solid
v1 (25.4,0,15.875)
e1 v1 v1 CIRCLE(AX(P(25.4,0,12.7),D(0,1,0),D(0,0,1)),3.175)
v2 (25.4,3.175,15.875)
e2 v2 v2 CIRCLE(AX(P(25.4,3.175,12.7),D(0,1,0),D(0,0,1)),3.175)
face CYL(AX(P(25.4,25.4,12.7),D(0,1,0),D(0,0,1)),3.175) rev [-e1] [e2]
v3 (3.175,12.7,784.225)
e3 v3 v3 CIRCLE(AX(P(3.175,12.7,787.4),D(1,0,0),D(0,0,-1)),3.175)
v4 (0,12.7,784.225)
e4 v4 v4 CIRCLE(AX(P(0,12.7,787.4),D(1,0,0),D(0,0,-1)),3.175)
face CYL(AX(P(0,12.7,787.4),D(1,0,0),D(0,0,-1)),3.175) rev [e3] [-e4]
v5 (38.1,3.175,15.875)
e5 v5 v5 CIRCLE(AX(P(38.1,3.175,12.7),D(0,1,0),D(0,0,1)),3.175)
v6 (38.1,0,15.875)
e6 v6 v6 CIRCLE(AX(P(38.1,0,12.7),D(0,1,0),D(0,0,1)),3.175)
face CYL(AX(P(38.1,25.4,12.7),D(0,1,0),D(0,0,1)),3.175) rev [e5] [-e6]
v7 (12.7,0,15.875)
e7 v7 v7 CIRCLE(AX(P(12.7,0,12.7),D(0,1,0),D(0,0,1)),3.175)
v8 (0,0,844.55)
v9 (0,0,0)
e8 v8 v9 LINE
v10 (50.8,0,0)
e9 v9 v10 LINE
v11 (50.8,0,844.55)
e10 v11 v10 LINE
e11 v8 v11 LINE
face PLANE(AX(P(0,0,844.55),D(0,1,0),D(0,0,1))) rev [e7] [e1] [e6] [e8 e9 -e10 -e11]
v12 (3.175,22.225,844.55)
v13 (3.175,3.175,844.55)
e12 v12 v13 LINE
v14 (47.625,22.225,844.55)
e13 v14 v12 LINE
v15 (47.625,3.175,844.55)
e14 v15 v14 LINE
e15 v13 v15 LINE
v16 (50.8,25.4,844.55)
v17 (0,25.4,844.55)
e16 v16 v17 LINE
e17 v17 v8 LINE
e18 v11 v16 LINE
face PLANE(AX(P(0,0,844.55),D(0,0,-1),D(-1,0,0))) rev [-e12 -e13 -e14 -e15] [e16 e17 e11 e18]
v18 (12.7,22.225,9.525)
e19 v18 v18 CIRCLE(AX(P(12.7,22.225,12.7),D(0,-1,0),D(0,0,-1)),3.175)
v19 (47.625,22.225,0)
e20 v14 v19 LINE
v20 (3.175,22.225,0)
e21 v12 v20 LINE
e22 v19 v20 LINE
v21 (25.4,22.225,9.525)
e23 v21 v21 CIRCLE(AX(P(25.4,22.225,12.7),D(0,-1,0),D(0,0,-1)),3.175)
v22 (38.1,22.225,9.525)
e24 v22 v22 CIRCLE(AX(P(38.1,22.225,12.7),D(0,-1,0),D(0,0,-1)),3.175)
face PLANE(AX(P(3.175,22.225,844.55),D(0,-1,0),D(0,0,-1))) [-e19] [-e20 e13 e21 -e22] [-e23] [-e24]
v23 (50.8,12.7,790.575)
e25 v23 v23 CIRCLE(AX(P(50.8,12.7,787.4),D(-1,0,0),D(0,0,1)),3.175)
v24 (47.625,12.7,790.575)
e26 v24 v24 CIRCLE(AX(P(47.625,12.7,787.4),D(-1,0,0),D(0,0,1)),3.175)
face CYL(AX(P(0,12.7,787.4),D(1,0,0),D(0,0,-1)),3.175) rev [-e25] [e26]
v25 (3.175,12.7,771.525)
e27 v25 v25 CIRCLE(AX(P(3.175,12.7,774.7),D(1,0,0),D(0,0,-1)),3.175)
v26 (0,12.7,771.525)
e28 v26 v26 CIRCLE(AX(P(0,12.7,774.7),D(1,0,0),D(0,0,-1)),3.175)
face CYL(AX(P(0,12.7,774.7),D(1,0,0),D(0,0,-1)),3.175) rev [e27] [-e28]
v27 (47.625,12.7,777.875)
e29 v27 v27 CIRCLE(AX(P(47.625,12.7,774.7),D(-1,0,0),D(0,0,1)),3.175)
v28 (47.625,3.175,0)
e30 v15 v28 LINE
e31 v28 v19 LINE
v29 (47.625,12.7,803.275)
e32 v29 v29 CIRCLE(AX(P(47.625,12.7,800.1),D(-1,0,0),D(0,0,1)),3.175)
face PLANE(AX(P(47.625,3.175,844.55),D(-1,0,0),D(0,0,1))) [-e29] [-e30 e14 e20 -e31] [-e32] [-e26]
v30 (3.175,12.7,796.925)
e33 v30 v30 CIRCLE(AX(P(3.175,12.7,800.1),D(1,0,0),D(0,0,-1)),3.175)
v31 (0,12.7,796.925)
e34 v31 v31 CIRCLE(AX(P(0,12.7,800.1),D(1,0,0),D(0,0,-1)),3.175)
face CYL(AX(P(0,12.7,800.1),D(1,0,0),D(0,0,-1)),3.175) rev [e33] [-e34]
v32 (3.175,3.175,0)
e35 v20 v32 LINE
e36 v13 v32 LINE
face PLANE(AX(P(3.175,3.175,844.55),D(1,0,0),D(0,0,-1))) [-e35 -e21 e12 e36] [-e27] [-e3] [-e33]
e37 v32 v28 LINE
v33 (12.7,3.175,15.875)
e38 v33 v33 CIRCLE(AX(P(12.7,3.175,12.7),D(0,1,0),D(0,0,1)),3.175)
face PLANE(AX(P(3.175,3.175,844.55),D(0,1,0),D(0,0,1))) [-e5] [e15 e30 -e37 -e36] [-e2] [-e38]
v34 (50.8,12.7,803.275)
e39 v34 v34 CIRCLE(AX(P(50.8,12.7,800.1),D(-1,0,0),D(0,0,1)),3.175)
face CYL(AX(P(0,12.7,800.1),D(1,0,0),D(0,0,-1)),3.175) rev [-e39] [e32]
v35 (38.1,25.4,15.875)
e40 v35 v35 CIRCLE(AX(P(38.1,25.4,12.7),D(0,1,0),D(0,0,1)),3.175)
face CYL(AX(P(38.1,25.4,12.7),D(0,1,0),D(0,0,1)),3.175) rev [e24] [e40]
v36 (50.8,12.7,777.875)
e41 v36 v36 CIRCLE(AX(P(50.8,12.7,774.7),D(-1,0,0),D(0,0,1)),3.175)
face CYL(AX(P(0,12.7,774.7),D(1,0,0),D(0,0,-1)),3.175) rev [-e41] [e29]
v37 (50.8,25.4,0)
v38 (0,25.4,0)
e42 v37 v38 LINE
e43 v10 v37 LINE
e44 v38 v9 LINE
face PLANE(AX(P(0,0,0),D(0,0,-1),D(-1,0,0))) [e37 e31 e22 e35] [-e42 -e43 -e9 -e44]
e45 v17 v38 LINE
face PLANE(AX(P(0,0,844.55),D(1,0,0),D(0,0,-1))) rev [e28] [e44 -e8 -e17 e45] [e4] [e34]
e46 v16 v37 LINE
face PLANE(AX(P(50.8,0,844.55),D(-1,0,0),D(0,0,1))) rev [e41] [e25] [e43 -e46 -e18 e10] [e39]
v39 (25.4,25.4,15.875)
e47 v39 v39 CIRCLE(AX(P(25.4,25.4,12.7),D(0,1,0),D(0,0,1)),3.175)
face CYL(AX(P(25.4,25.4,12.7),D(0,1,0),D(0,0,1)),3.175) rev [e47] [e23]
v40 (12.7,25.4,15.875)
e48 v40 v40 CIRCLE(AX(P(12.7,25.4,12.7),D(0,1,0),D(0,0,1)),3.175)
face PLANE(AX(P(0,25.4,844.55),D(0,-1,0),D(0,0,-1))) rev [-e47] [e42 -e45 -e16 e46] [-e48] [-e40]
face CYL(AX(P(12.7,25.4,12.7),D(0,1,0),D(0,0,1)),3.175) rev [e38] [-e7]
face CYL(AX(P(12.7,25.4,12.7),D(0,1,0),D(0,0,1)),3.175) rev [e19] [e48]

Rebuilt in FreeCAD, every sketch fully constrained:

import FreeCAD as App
import Part
import Sketcher
Q = App.Units.Quantity

doc = App.newDocument("Part")
body = doc.addObject("PartDesign::Body", "Body")

# Sketch on XY plane
sketch1 = doc.addObject("Sketcher::SketchObject", "Sketch")
body.addObject(sketch1)
sketch1.AttachmentSupport = (doc.XY_Plane, [""])
sketch1.MapMode = "FlatFace"
sketch1.addGeometry([
    Part.LineSegment(App.Vector(0, 25, 0), App.Vector(0, 0, 0)),  # 0
    Part.LineSegment(App.Vector(0, 0, 0), App.Vector(51, 0, 0)),  # 1
    Part.LineSegment(App.Vector(51, 0, 0), App.Vector(51, 25, 0)),  # 2
    Part.LineSegment(App.Vector(51, 25, 0), App.Vector(0, 25, 0)),  # 3
    Part.LineSegment(App.Vector(48, 3, 0), App.Vector(3, 3, 0)),  # 4
    Part.LineSegment(App.Vector(3, 3, 0), App.Vector(3, 22, 0)),  # 5
    Part.LineSegment(App.Vector(3, 22, 0), App.Vector(48, 22, 0)),  # 6
    Part.LineSegment(App.Vector(48, 22, 0), App.Vector(48, 3, 0)),  # 7
], False)
sketch1.addConstraint([
    Sketcher.Constraint("Coincident", 0, 2, 1, 1),
    Sketcher.Constraint("Coincident", 1, 2, 2, 1),
    Sketcher.Constraint("Coincident", 2, 2, 3, 1),
    Sketcher.Constraint("Coincident", 3, 2, 0, 1),
    Sketcher.Constraint("Coincident", 4, 2, 5, 1),
    Sketcher.Constraint("Coincident", 5, 2, 6, 1),
    Sketcher.Constraint("Coincident", 6, 2, 7, 1),
    Sketcher.Constraint("Coincident", 7, 2, 4, 1),
    Sketcher.Constraint("Vertical", 0),
    Sketcher.Constraint("Horizontal", 1),
    Sketcher.Constraint("Vertical", 2),
    Sketcher.Constraint("Horizontal", 3),
    Sketcher.Constraint("Horizontal", 4),
    Sketcher.Constraint("Vertical", 5),
    Sketcher.Constraint("Horizontal", 6),
    Sketcher.Constraint("Vertical", 7),
    Sketcher.Constraint("Coincident", 0, 2, -1, 1),
    Sketcher.Constraint("DistanceX", 1, 1, 1, 2, Q("2 in")),
    Sketcher.Constraint("DistanceY", 0, 2, 0, 1, Q("1 in")),
    Sketcher.Constraint("DistanceX", 4, 2, 4, 1, Q("1.75 in")),
    Sketcher.Constraint("DistanceY", 5, 1, 5, 2, Q("0.75 in")),
    Sketcher.Constraint("DistanceX", -1, 1, 4, 2, Q("0.125 in")),
    Sketcher.Constraint("DistanceY", -1, 1, 4, 2, Q("0.125 in")),
])
pad1 = doc.addObject("PartDesign::Pad", "Pad")
body.addObject(pad1)
pad1.Profile = sketch1
pad1.Length = Q("33.25 in")

# Sketch on YZ plane
sketch2 = doc.addObject("Sketcher::SketchObject", "Sketch001")
body.addObject(sketch2)
sketch2.AttachmentSupport = (doc.YZ_Plane, [""])
sketch2.MapMode = "FlatFace"
sketch2.AttachmentOffset = App.Placement(App.Vector(0, 0, 2 * 25.4), App.Rotation())
sketch2.addGeometry([
    Part.Circle(App.Vector(12.7, 800.1, 0), App.Vector(0, 0, 1), 3.2),
    Part.Circle(App.Vector(12.7, 787.4, 0), App.Vector(0, 0, 1), 3.2),
    Part.Circle(App.Vector(12.7, 774.7, 0), App.Vector(0, 0, 1), 3.2),
], False)
sketch2.addConstraint([
    Sketcher.Constraint("Equal", 0, 1),
    Sketcher.Constraint("Equal", 1, 2),
    Sketcher.Constraint("Vertical", 0, 3, 1, 3),
    Sketcher.Constraint("Vertical", 1, 3, 2, 3),
    Sketcher.Constraint("Diameter", 0, Q("0.25 in")),
    Sketcher.Constraint("DistanceY", -1, 1, 1, 3, Q("31 in")),
    Sketcher.Constraint("DistanceY", 2, 3, 0, 3, Q("1 in")),
    Sketcher.Constraint("DistanceX", -1, 1, 0, 3, Q("0.5 in")),
    Sketcher.Constraint("DistanceY", -1, 1, 0, 3, Q("31.5 in")),
])
pocket1 = doc.addObject("PartDesign::Pocket", "Pocket")
body.addObject(pocket1)
pocket1.Profile = sketch2
pocket1.Type = "ThroughAll"
pocket1.Midplane = True

# Sketch on XZ plane
sketch3 = doc.addObject("Sketcher::SketchObject", "Sketch002")
body.addObject(sketch3)
sketch3.AttachmentSupport = (doc.XZ_Plane, [""])
sketch3.MapMode = "FlatFace"
sketch3.AttachmentOffset = App.Placement(App.Vector(0, 0, -1 * 25.4), App.Rotation())
sketch3.addGeometry([
    Part.Circle(App.Vector(12.7, 12.7, 0), App.Vector(0, 0, 1), 3.2),
    Part.Circle(App.Vector(25.4, 12.7, 0), App.Vector(0, 0, 1), 3.2),
    Part.Circle(App.Vector(38.1, 12.7, 0), App.Vector(0, 0, 1), 3.2),
], False)
sketch3.addConstraint([
    Sketcher.Constraint("Equal", 0, 1),
    Sketcher.Constraint("Equal", 1, 2),
    Sketcher.Constraint("Horizontal", 0, 3, 1, 3),
    Sketcher.Constraint("Horizontal", 1, 3, 2, 3),
    Sketcher.Constraint("Diameter", 0, Q("0.25 in")),
    Sketcher.Constraint("DistanceX", -1, 1, 1, 3, Q("1 in")),
    Sketcher.Constraint("DistanceX", 0, 3, 2, 3, Q("1 in")),
    Sketcher.Constraint("DistanceX", -1, 1, 0, 3, Q("0.5 in")),
    Sketcher.Constraint("DistanceY", -1, 1, 0, 3, Q("0.5 in")),
])
doc.recompute()
hole = doc.addObject("PartDesign::Hole", "Hole")
body.addObject(hole)
hole.Profile = sketch3
hole.ThreadType = "None"
hole.Diameter = Q("0.25 in")
hole.DepthType = "ThroughAll"
hole.Reversed = True

doc.recompute()
